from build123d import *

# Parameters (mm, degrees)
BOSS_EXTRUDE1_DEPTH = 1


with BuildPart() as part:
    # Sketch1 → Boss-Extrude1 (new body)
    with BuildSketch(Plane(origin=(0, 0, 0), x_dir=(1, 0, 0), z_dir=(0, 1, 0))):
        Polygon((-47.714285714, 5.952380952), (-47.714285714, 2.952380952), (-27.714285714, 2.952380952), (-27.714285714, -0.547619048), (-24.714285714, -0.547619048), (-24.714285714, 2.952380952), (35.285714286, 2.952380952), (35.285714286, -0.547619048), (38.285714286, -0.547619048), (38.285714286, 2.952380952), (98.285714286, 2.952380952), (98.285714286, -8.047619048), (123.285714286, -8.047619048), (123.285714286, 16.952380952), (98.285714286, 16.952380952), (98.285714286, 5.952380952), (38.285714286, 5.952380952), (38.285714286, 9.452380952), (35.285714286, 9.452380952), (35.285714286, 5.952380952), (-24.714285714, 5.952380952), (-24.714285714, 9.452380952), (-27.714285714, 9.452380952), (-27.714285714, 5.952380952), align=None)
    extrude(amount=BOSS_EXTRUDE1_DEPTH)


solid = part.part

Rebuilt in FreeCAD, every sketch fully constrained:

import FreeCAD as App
import Part
import Sketcher

V = App.Vector

doc = App.newDocument("Part")
body = doc.addObject("PartDesign::Body", "Body")

# Sketch on XZ plane
sketch1 = body.newObject("Sketcher::SketchObject", "Sketch")
sketch1.AttachmentSupport = (doc.getObject("XZ_Plane"), [""])
sketch1.MapMode = "FlatFace"
sketch1.addGeometry([
    Part.LineSegment(V(-47.7, -6, 0), V(-47.7, -3, 0)),  # 0
    Part.LineSegment(V(-47.7, -3, 0), V(-27.7, -3, 0)),  # 1
    Part.LineSegment(V(-27.7, -3, 0), V(-27.7, 0.5, 0)),  # 2
    Part.LineSegment(V(-27.7, 0.5, 0), V(-24.7, 0.5, 0)),  # 3
    Part.LineSegment(V(-24.7, 0.5, 0), V(-24.7, -3, 0)),  # 4
    Part.LineSegment(V(-24.7, -3, 0), V(35.3, -3, 0)),  # 5
    Part.LineSegment(V(35.3, -3, 0), V(35.3, 0.5, 0)),  # 6
    Part.LineSegment(V(35.3, 0.5, 0), V(38.3, 0.5, 0)),  # 7
    Part.LineSegment(V(38.3, 0.5, 0), V(38.3, -3, 0)),  # 8
    Part.LineSegment(V(38.3, -3, 0), V(98.3, -3, 0)),  # 9
    Part.LineSegment(V(98.3, -3, 0), V(98.3, 8, 0)),  # 10
    Part.LineSegment(V(98.3, 8, 0), V(123.3, 8, 0)),  # 11
    Part.LineSegment(V(123.3, 8, 0), V(123.3, -17, 0)),  # 12
    Part.LineSegment(V(123.3, -17, 0), V(98.3, -17, 0)),  # 13
    Part.LineSegment(V(98.3, -17, 0), V(98.3, -6, 0)),  # 14
    Part.LineSegment(V(98.3, -6, 0), V(38.3, -6, 0)),  # 15
    Part.LineSegment(V(38.3, -6, 0), V(38.3, -9.5, 0)),  # 16
    Part.LineSegment(V(38.3, -9.5, 0), V(35.3, -9.5, 0)),  # 17
    Part.LineSegment(V(35.3, -9.5, 0), V(35.3, -6, 0)),  # 18
    Part.LineSegment(V(35.3, -6, 0), V(-24.7, -6, 0)),  # 19
    Part.LineSegment(V(-24.7, -6, 0), V(-24.7, -9.5, 0)),  # 20
    Part.LineSegment(V(-24.7, -9.5, 0), V(-27.7, -9.5, 0)),  # 21
    Part.LineSegment(V(-27.7, -9.5, 0), V(-27.7, -6, 0)),  # 22
    Part.LineSegment(V(-27.7, -6, 0), V(-47.7, -6, 0)),  # 23
], False)
sketch1.addConstraint([
    Sketcher.Constraint("Coincident", 0, 2, 1, 1),
    Sketcher.Constraint("Coincident", 1, 2, 2, 1),
    Sketcher.Constraint("Coincident", 2, 2, 3, 1),
    Sketcher.Constraint("Coincident", 3, 2, 4, 1),
    Sketcher.Constraint("Coincident", 4, 2, 5, 1),
    Sketcher.Constraint("Coincident", 5, 2, 6, 1),
    Sketcher.Constraint("Coincident", 6, 2, 7, 1),
    Sketcher.Constraint("Coincident", 7, 2, 8, 1),
    Sketcher.Constraint("Coincident", 8, 2, 9, 1),
    Sketcher.Constraint("Coincident", 9, 2, 10, 1),
    Sketcher.Constraint("Coincident", 10, 2, 11, 1),
    Sketcher.Constraint("Coincident", 11, 2, 12, 1),
    Sketcher.Constraint("Coincident", 12, 2, 13, 1),
    Sketcher.Constraint("Coincident", 13, 2, 14, 1),
    Sketcher.Constraint("Coincident", 14, 2, 15, 1),
    Sketcher.Constraint("Coincident", 15, 2, 16, 1),
    Sketcher.Constraint("Coincident", 16, 2, 17, 1),
    Sketcher.Constraint("Coincident", 17, 2, 18, 1),
    Sketcher.Constraint("Coincident", 18, 2, 19, 1),
    Sketcher.Constraint("Coincident", 19, 2, 20, 1),
    Sketcher.Constraint("Coincident", 20, 2, 21, 1),
    Sketcher.Constraint("Coincident", 21, 2, 22, 1),
    Sketcher.Constraint("Coincident", 22, 2, 23, 1),
    Sketcher.Constraint("Coincident", 23, 2, 0, 1),
    Sketcher.Constraint("Vertical", 0),
    Sketcher.Constraint("Horizontal", 1),
    Sketcher.Constraint("Vertical", 2),
    Sketcher.Constraint("Horizontal", 3),
    Sketcher.Constraint("Vertical", 4),
    Sketcher.Constraint("Horizontal", 5),
    Sketcher.Constraint("Vertical", 6),
    Sketcher.Constraint("Horizontal", 7),
    Sketcher.Constraint("Vertical", 8),
    Sketcher.Constraint("Horizontal", 9),
    Sketcher.Constraint("Vertical", 10),
    Sketcher.Constraint("Horizontal", 11),
    Sketcher.Constraint("Vertical", 12),
    Sketcher.Constraint("Horizontal", 13),
    Sketcher.Constraint("Vertical", 14),
    Sketcher.Constraint("Horizontal", 15),
    Sketcher.Constraint("Vertical", 16),
    Sketcher.Constraint("Horizontal", 17),
    Sketcher.Constraint("Vertical", 18),
    Sketcher.Constraint("Horizontal", 19),
    Sketcher.Constraint("Vertical", 20),
    Sketcher.Constraint("Horizontal", 21),
    Sketcher.Constraint("Vertical", 22),
    Sketcher.Constraint("Horizontal", 23),
    Sketcher.Constraint("Horizontal", 1, 2, 4, 2),
    Sketcher.Constraint("Horizontal", 3, 2, 6, 2),
    Sketcher.Constraint("Horizontal", 5, 2, 8, 2),
    Sketcher.Constraint("Horizontal", 15, 2, 18, 2),
    Sketcher.Constraint("Horizontal", 17, 2, 20, 2),
    Sketcher.Constraint("Horizontal", 19, 2, 22, 2),
    Sketcher.Constraint("Vertical", 10, 2, 13, 2),
    Sketcher.Constraint("Vertical", 8, 2, 15, 2),
    Sketcher.Constraint("Vertical", 6, 2, 17, 2),
    Sketcher.Constraint("Vertical", 4, 2, 19, 2),
    Sketcher.Constraint("Vertical", 2, 2, 21, 2),
    Sketcher.Constraint("Equal", 3, 7),
    Sketcher.Constraint("Equal", 5, 9),
    Sketcher.Constraint("Equal", 21, 0),
    Sketcher.Constraint("Equal", 13, 12),
    Sketcher.Constraint("Equal", 10, 14),
    Sketcher.Constraint("Equal", 8, 16),
    Sketcher.Constraint("DistanceX", 1, 1, 1, 2, 20.0),
    Sketcher.Constraint("DistanceX", 3, 1, 3, 2, 3.0),
    Sketcher.Constraint("DistanceX", 5, 1, 5, 2, 60.0),
    Sketcher.Constraint("DistanceX", 11, 1, 11, 2, 25.0),
    Sketcher.Constraint("DistanceY", 2, 1, 2, 2, 3.5),
    Sketcher.Constraint("DistanceY", 0, 2, -1, 1, 2.952381),
    Sketcher.Constraint("DistanceX", 0, 2, -1, 1, 47.714286),
])
pad1 = body.newObject("PartDesign::Pad", "Pad")
pad1.Profile = sketch1
pad1.Length = 1
pad1.Reversed = True

doc.recompute()
